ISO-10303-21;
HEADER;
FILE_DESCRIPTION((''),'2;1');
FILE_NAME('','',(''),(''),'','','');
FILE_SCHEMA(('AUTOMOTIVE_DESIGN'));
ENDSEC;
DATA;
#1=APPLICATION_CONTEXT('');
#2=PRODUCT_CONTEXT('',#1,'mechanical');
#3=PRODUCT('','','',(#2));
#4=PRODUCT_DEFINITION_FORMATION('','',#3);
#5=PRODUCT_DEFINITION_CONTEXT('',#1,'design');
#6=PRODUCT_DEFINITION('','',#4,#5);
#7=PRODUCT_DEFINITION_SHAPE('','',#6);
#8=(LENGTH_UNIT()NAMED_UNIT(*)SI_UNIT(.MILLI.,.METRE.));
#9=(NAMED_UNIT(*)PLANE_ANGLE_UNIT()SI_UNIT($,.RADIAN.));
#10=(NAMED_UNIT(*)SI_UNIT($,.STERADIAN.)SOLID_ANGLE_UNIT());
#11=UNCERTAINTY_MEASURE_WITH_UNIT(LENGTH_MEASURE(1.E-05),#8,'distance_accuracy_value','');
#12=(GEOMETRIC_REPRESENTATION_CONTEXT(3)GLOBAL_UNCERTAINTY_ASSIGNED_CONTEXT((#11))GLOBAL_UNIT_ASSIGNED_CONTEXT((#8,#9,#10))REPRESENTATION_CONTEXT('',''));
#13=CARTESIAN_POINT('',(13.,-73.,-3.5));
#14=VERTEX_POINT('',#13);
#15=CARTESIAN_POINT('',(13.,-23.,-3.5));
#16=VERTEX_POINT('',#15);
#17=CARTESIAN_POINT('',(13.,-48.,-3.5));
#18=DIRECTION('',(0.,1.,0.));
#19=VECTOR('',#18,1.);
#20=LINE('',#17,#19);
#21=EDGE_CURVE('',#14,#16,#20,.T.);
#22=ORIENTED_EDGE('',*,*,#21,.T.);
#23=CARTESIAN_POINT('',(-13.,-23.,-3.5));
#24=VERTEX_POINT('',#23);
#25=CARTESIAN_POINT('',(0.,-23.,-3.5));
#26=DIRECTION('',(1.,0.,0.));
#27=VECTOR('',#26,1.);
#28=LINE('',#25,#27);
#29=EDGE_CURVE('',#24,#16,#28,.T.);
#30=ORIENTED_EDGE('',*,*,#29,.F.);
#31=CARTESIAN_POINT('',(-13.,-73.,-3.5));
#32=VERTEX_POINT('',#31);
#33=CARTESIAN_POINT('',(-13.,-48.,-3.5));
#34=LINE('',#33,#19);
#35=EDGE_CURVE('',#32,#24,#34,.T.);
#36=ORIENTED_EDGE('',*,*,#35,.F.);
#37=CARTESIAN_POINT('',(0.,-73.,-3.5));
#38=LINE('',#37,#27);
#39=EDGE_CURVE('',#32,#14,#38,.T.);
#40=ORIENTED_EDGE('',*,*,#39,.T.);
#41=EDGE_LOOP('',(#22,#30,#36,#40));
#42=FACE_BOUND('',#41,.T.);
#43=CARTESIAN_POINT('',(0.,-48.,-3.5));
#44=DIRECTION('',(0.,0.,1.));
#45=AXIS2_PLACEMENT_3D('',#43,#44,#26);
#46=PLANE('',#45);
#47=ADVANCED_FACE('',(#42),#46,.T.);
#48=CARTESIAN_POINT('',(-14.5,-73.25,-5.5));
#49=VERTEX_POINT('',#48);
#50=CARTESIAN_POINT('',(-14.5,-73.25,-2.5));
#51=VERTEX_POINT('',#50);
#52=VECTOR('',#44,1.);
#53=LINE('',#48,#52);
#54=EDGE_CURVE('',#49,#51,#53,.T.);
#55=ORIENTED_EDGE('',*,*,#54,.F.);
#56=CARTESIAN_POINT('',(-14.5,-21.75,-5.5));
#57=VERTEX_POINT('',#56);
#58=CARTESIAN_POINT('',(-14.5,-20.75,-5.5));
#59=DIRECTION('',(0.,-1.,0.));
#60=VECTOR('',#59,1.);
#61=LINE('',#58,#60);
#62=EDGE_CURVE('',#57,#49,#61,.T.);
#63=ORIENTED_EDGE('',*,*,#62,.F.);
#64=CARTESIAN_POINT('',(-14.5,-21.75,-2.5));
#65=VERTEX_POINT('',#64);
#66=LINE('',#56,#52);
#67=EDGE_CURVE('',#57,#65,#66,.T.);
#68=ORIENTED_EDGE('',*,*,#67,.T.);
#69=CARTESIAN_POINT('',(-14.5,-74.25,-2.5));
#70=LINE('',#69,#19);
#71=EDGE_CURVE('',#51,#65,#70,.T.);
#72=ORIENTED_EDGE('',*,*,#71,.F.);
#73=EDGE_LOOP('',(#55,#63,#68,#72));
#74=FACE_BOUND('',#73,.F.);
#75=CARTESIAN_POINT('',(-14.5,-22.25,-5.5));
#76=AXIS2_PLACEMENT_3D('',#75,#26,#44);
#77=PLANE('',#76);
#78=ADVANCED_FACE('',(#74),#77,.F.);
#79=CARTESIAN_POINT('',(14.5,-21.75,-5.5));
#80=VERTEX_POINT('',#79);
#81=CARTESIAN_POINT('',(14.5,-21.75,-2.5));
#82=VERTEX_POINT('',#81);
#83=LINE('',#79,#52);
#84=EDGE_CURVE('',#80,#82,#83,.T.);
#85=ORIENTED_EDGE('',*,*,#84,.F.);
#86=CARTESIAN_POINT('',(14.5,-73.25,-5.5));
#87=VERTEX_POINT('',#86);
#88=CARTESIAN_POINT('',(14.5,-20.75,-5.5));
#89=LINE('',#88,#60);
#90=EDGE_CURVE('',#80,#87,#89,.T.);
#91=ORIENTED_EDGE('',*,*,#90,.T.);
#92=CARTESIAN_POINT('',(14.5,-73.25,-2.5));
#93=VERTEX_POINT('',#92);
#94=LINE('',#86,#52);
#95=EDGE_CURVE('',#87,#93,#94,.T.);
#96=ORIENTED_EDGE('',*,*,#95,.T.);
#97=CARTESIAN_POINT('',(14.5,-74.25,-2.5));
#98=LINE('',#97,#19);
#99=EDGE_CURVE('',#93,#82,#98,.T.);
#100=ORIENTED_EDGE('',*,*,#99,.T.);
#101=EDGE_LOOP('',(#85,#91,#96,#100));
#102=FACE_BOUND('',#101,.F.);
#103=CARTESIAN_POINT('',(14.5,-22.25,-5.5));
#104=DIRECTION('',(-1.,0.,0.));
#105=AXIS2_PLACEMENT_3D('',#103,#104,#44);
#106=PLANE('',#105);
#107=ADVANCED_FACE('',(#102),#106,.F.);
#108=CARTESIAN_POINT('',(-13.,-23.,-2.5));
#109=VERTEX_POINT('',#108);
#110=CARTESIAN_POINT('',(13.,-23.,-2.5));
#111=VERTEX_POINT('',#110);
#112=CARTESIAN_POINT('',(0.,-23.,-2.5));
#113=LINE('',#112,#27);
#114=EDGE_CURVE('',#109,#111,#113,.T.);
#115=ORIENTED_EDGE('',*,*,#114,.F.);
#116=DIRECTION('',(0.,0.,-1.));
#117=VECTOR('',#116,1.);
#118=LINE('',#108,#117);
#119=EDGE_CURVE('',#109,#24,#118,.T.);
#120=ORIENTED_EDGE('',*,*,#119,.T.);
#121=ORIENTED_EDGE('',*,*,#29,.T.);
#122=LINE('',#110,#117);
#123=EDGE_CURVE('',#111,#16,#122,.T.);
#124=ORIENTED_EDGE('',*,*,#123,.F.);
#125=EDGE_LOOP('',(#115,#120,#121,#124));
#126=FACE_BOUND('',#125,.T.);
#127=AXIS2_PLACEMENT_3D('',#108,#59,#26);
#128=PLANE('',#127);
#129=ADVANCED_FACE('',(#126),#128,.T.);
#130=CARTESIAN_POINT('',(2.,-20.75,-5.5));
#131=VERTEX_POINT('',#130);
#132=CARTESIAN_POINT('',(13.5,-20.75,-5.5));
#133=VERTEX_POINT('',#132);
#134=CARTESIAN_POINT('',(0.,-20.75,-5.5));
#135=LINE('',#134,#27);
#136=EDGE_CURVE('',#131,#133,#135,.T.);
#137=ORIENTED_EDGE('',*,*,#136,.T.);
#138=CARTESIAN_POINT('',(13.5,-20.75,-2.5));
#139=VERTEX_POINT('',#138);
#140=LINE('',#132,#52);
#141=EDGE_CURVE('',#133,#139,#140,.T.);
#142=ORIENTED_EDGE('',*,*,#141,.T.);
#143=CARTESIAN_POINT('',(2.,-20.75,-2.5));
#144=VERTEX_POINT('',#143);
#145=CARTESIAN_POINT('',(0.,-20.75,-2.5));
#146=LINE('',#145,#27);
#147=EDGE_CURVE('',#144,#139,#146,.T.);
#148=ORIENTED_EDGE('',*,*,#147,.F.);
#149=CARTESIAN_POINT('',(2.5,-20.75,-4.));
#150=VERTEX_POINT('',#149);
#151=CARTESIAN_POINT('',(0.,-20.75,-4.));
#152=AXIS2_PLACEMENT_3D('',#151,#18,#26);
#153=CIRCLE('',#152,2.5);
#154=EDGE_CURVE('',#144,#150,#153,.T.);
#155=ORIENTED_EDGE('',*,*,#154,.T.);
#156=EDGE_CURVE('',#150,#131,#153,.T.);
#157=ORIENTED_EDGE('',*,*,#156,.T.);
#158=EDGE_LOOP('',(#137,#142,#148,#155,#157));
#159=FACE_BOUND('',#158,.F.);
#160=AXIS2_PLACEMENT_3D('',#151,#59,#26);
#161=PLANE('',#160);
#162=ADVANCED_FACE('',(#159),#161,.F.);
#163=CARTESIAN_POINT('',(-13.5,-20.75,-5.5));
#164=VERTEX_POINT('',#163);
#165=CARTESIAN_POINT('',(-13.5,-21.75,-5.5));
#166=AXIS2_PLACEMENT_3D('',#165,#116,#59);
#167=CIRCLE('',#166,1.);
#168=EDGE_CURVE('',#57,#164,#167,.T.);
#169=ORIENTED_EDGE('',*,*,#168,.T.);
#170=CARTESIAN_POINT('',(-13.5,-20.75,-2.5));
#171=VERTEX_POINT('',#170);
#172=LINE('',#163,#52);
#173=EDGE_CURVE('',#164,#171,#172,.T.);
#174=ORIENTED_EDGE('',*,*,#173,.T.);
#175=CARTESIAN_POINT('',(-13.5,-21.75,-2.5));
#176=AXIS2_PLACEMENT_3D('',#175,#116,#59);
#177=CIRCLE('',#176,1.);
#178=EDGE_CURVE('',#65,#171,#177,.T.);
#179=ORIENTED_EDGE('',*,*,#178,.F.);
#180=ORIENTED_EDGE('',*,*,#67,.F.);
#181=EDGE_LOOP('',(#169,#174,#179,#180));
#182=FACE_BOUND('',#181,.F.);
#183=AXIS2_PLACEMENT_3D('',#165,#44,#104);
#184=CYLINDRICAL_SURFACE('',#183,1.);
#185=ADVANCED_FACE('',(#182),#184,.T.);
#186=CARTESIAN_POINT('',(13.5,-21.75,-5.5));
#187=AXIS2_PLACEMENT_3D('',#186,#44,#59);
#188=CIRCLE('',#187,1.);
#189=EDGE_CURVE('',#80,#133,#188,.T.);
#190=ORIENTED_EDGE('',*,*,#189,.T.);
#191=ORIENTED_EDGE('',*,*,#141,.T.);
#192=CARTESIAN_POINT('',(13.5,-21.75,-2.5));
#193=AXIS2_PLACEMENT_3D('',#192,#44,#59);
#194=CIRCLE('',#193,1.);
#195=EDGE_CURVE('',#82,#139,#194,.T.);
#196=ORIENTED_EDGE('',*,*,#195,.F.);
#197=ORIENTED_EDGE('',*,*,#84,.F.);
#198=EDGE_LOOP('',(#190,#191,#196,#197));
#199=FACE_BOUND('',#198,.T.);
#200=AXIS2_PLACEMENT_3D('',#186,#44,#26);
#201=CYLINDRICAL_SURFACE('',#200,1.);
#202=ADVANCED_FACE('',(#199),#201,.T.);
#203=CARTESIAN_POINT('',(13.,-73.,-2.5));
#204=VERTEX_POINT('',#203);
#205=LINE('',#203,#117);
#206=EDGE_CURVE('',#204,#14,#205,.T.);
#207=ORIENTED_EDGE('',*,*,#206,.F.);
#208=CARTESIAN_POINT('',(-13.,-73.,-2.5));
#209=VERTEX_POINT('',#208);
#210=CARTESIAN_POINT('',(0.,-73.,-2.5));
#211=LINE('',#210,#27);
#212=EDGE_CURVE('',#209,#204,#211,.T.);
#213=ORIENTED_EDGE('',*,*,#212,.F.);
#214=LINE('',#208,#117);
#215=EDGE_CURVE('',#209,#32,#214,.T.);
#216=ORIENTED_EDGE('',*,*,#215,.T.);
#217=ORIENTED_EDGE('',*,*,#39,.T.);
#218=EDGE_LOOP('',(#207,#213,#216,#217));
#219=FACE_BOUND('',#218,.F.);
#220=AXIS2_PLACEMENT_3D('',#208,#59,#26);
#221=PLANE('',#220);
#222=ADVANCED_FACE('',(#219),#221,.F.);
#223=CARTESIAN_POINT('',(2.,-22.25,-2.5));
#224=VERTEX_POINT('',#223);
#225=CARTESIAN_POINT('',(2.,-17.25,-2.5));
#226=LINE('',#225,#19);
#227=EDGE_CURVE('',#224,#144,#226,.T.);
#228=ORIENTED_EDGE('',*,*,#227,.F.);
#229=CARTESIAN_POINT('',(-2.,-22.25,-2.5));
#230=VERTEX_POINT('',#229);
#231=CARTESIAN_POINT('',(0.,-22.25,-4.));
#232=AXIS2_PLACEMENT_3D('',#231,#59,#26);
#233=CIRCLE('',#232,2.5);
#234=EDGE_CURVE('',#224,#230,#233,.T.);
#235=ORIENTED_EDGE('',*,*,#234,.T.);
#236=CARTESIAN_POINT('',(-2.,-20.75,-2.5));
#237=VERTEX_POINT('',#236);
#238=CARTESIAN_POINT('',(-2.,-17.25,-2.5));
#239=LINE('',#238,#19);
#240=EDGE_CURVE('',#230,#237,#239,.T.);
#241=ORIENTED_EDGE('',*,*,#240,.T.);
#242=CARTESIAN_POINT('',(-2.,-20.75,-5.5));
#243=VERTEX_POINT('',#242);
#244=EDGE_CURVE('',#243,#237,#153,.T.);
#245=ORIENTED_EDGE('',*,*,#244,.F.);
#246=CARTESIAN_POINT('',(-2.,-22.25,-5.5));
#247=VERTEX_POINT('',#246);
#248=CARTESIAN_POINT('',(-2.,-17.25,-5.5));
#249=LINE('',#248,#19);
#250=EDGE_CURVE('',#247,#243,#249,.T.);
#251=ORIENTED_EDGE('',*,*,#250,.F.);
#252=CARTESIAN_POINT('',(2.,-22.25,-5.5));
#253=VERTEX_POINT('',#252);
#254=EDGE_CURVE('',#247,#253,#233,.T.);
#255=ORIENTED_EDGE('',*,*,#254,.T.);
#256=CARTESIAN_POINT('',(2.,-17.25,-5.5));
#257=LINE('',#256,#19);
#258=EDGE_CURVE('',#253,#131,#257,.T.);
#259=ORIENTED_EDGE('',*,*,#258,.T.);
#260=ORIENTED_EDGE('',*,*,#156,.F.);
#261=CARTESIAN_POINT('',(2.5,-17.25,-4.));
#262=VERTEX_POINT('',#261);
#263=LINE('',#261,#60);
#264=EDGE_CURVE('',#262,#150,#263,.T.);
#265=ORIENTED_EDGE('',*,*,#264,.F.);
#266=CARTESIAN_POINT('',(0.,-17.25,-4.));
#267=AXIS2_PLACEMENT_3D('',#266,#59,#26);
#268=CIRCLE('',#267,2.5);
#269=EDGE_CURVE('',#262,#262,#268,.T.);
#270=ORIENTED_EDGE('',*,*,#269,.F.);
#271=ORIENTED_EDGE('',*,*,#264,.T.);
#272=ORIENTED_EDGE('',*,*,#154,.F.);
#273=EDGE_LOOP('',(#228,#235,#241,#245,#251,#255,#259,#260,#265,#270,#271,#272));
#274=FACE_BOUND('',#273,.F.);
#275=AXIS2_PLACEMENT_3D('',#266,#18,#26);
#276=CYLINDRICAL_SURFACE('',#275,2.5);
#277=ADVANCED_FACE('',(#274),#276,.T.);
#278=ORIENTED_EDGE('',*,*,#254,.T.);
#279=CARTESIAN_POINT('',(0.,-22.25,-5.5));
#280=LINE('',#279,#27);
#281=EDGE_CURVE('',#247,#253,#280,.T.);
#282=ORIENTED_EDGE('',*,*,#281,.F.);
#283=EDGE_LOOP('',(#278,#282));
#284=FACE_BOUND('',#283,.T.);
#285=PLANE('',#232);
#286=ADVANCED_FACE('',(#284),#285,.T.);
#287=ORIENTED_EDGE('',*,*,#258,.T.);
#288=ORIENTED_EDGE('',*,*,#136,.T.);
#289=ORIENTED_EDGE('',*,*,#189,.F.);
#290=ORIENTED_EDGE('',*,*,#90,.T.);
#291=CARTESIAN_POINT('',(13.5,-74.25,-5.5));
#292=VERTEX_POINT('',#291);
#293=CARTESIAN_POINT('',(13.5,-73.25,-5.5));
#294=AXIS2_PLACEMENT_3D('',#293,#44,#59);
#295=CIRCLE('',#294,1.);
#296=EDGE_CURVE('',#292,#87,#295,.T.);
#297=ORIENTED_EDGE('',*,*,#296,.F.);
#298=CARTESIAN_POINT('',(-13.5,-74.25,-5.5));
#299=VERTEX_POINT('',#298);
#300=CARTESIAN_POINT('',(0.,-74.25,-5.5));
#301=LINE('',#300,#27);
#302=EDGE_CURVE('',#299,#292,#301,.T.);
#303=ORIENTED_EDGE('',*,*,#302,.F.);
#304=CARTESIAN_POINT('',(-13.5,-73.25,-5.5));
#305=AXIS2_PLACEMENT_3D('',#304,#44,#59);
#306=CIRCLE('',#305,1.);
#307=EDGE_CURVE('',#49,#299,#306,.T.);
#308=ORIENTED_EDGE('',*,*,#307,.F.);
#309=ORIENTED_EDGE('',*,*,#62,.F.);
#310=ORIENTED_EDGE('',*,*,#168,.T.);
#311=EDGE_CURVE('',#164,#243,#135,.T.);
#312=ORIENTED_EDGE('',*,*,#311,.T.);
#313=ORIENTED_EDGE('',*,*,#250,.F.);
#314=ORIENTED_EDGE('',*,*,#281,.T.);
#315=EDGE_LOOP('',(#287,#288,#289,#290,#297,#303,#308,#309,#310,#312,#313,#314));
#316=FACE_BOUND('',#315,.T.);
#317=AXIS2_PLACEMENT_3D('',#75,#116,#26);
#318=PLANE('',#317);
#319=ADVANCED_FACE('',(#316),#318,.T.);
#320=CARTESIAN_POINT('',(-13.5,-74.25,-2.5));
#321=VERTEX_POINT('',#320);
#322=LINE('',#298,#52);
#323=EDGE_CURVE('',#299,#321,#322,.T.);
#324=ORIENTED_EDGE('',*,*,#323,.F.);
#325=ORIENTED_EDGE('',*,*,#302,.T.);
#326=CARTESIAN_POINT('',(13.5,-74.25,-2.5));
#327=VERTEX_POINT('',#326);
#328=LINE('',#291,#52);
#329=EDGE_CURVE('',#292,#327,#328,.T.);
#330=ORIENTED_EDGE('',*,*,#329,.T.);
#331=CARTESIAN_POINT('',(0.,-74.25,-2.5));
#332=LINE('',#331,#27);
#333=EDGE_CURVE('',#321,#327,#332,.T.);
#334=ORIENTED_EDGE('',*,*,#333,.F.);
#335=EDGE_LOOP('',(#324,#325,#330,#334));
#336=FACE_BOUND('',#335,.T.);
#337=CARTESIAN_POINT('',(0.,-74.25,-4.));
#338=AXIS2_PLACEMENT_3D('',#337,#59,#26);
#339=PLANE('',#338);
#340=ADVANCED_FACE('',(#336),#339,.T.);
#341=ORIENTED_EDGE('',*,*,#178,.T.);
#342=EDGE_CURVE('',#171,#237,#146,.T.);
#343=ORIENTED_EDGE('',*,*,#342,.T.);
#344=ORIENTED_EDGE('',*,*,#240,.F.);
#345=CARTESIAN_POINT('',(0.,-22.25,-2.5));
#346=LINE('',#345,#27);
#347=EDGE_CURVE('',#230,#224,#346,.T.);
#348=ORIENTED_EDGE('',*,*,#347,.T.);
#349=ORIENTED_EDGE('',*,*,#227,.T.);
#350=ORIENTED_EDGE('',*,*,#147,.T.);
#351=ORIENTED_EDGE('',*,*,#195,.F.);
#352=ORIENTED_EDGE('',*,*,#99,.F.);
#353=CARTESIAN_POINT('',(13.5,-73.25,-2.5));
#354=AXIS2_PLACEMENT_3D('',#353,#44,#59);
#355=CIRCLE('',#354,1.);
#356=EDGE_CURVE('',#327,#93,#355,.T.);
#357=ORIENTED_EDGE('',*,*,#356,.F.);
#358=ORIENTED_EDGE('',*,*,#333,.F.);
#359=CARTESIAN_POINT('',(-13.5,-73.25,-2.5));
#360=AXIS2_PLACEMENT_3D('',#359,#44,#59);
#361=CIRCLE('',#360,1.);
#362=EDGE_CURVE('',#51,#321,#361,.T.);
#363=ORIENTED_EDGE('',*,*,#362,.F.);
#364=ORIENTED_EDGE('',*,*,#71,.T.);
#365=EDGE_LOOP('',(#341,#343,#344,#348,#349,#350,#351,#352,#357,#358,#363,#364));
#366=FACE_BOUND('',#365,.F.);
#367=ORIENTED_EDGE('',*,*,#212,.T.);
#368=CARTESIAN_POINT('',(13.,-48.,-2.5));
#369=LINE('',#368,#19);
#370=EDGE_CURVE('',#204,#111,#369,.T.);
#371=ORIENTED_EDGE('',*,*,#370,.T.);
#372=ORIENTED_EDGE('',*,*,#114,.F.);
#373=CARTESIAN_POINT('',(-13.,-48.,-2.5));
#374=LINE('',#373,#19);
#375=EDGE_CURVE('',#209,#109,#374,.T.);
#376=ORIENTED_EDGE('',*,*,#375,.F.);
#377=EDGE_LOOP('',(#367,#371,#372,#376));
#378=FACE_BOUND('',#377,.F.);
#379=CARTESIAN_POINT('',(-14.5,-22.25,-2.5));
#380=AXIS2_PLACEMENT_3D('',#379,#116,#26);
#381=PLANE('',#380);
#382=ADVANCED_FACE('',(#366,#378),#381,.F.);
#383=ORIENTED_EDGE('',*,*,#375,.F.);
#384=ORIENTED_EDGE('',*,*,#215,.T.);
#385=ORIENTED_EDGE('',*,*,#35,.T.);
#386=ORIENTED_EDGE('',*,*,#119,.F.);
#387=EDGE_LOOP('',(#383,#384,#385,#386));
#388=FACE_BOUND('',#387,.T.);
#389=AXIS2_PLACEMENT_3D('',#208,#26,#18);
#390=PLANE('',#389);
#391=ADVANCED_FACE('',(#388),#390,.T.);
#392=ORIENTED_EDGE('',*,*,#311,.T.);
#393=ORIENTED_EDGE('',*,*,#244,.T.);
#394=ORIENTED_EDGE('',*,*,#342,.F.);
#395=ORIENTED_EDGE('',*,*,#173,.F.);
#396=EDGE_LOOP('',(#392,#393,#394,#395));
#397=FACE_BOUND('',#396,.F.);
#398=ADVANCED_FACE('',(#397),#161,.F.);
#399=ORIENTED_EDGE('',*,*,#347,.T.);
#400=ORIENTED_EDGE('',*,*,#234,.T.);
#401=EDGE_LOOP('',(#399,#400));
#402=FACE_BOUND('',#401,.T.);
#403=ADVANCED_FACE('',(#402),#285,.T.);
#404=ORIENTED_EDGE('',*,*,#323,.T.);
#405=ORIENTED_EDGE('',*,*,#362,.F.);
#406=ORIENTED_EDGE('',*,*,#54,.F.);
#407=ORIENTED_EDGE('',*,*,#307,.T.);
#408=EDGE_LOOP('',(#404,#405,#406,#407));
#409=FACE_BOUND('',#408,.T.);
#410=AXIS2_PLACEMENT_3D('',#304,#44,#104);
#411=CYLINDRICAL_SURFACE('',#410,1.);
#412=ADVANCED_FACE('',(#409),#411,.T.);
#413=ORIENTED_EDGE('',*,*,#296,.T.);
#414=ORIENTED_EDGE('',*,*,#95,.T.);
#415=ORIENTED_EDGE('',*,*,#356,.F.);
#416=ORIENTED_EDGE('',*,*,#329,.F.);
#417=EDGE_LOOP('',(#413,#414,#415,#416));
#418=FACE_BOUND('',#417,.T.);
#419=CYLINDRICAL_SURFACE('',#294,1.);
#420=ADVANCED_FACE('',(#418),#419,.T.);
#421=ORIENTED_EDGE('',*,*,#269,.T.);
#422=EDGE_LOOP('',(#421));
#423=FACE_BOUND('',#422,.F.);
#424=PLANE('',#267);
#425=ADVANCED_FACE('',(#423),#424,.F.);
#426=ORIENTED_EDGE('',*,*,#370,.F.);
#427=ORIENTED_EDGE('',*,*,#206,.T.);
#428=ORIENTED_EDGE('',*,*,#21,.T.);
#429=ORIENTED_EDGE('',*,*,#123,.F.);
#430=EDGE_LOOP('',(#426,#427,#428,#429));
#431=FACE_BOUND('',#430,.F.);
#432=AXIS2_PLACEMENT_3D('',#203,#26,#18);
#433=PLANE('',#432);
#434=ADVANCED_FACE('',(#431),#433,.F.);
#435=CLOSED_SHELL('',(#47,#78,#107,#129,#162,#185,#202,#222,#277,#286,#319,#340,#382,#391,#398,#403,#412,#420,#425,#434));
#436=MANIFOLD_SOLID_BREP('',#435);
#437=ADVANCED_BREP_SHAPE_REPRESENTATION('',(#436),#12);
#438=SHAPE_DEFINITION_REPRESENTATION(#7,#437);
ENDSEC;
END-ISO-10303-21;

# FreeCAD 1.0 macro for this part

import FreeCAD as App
import Part
import Sketcher


def edges_at(feature, points):
    """Names of the edges that pass closest to the given points."""
    edges = feature.Shape.Edges
    near = lambda p: min(range(len(edges)), key=lambda i: edges[i].distToShape(Part.Vertex(*p))[0])
    return sorted({f"Edge{near(p) + 1}" for p in points})


def add_polygon(sketch, points):
    """Adds a closed chain of lines whose ends are joined by coincident constraints."""
    first, n = sketch.GeometryCount, len(points)
    for a, b in zip(points, points[1:] + points[:1]):
        sketch.addGeometry(Part.LineSegment(App.Vector(*a, 0), App.Vector(*b, 0)), False)
    for i in range(n):
        sketch.addConstraint(Sketcher.Constraint("Coincident", first + i, 2, first + (i + 1) % n, 1))

doc = App.newDocument("Part")
params = doc.addObject("Spreadsheet::Sheet", "Params")
for row, (alias, value) in enumerate([
    ("sketch1_diameter", "5 mm"),
    ("pad1_length", "5 mm"),
    ("sketch2_width", "29 mm"),
    ("sketch2_height", "3 mm"),
    ("pad2_length", "52 mm"),
    ("pad2_length2", "1.5 mm"),
    ("fillet_radius", "1 mm"),
    ("sketch3_width", "26 mm"),
    ("sketch3_height", "50 mm"),
    ("pocket1_length", "1 mm"),
], start=1):
    params.set(f"A{row}", alias)
    params.set(f"B{row}", "=" + value)
    params.setAlias(f"B{row}", alias)

body = doc.addObject("PartDesign::Body", "Body")

sketch1 = body.newObject("Sketcher::SketchObject", "Sketch")
sketch1.AttachmentSupport = (doc.getObject("XZ_Plane"), [""])
sketch1.MapMode = "FlatFace"
sketch1.AttachmentOffset = App.Placement(App.Vector(0, 0, 17.25), App.Rotation())
sketch1.addGeometry(Part.Circle(App.Vector(0, -4, 0), App.Vector(0, 0, 1), 2.5), False)
sketch1.addConstraint(Sketcher.Constraint("PointOnObject", 0, 3, -2))
sketch1.addConstraint(Sketcher.Constraint("Diameter", 0, 5.0))
sketch1.addConstraint(Sketcher.Constraint("DistanceY", 0, 3, -1, 1, 4.0))
sketch1.setExpression("Constraints[1]", "Params.sketch1_diameter")
pad1 = body.newObject("PartDesign::Pad", "Pad")
pad1.Profile = sketch1
pad1.setExpression("Length", "Params.pad1_length")

sketch2 = body.newObject("Sketcher::SketchObject", "Sketch001")
sketch2.AttachmentSupport = (doc.getObject("XZ_Plane"), [""])
sketch2.MapMode = "FlatFace"
sketch2.AttachmentOffset = App.Placement(App.Vector(0, 0, 22.25), App.Rotation())
add_polygon(sketch2, [(-14.5, -2.5), (-14.5, -5.5), (14.5, -5.5), (14.5, -2.5)])
sketch2.addConstraint(Sketcher.Constraint("Vertical", 0))
sketch2.addConstraint(Sketcher.Constraint("Horizontal", 1))
sketch2.addConstraint(Sketcher.Constraint("Vertical", 2))
sketch2.addConstraint(Sketcher.Constraint("Horizontal", 3))
sketch2.addConstraint(Sketcher.Constraint("DistanceX", 1, 1, 1, 2, 29.0))
sketch2.addConstraint(Sketcher.Constraint("DistanceY", 0, 2, 0, 1, 3.0))
sketch2.addConstraint(Sketcher.Constraint("DistanceX", 0, 2, -1, 1, 14.5))
sketch2.addConstraint(Sketcher.Constraint("DistanceY", 0, 2, -1, 1, 5.5))
sketch2.setExpression("Constraints[8]", "Params.sketch2_width")
sketch2.setExpression("Constraints[9]", "Params.sketch2_height")
pad2 = body.newObject("PartDesign::Pad", "Pad001")
pad2.Profile = sketch2
pad2.Type = "TwoLengths"
pad2.setExpression("Length", "Params.pad2_length")
pad2.setExpression("Length2", "Params.pad2_length2")
doc.recompute()

fillet = body.newObject("PartDesign::Fillet", "Fillet")
fillet.Base = (pad2, edges_at(pad2, [
    (14.5, -74.25, -4),
    (-14.5, -20.75, -4),
    (-14.5, -74.25, -4),
    (14.5, -20.75, -4),
]))
fillet.setExpression("Radius", "Params.fillet_radius")

sketch3 = body.newObject("Sketcher::SketchObject", "Sketch002")
sketch3.AttachmentSupport = (doc.getObject("XY_Plane"), [""])
sketch3.MapMode = "FlatFace"
sketch3.AttachmentOffset = App.Placement(App.Vector(0, 0, -2.5), App.Rotation())
add_polygon(sketch3, [(-13, -23), (-13, -73), (13, -73), (13, -23)])
sketch3.addConstraint(Sketcher.Constraint("Vertical", 0))
sketch3.addConstraint(Sketcher.Constraint("Horizontal", 1))
sketch3.addConstraint(Sketcher.Constraint("Vertical", 2))
sketch3.addConstraint(Sketcher.Constraint("Horizontal", 3))
sketch3.addConstraint(Sketcher.Constraint("DistanceX", 1, 1, 1, 2, 26.0))
sketch3.addConstraint(Sketcher.Constraint("DistanceY", 0, 2, 0, 1, 50.0))
sketch3.addConstraint(Sketcher.Constraint("DistanceX", 0, 2, -1, 1, 13.0))
sketch3.addConstraint(Sketcher.Constraint("DistanceY", 0, 2, -1, 1, 73.0))
sketch3.setExpression("Constraints[8]", "Params.sketch3_width")
sketch3.setExpression("Constraints[9]", "Params.sketch3_height")
pocket1 = body.newObject("PartDesign::Pocket", "Pocket")
pocket1.Profile = sketch3
pocket1.setExpression("Length", "Params.pocket1_length")

doc.recompute()
